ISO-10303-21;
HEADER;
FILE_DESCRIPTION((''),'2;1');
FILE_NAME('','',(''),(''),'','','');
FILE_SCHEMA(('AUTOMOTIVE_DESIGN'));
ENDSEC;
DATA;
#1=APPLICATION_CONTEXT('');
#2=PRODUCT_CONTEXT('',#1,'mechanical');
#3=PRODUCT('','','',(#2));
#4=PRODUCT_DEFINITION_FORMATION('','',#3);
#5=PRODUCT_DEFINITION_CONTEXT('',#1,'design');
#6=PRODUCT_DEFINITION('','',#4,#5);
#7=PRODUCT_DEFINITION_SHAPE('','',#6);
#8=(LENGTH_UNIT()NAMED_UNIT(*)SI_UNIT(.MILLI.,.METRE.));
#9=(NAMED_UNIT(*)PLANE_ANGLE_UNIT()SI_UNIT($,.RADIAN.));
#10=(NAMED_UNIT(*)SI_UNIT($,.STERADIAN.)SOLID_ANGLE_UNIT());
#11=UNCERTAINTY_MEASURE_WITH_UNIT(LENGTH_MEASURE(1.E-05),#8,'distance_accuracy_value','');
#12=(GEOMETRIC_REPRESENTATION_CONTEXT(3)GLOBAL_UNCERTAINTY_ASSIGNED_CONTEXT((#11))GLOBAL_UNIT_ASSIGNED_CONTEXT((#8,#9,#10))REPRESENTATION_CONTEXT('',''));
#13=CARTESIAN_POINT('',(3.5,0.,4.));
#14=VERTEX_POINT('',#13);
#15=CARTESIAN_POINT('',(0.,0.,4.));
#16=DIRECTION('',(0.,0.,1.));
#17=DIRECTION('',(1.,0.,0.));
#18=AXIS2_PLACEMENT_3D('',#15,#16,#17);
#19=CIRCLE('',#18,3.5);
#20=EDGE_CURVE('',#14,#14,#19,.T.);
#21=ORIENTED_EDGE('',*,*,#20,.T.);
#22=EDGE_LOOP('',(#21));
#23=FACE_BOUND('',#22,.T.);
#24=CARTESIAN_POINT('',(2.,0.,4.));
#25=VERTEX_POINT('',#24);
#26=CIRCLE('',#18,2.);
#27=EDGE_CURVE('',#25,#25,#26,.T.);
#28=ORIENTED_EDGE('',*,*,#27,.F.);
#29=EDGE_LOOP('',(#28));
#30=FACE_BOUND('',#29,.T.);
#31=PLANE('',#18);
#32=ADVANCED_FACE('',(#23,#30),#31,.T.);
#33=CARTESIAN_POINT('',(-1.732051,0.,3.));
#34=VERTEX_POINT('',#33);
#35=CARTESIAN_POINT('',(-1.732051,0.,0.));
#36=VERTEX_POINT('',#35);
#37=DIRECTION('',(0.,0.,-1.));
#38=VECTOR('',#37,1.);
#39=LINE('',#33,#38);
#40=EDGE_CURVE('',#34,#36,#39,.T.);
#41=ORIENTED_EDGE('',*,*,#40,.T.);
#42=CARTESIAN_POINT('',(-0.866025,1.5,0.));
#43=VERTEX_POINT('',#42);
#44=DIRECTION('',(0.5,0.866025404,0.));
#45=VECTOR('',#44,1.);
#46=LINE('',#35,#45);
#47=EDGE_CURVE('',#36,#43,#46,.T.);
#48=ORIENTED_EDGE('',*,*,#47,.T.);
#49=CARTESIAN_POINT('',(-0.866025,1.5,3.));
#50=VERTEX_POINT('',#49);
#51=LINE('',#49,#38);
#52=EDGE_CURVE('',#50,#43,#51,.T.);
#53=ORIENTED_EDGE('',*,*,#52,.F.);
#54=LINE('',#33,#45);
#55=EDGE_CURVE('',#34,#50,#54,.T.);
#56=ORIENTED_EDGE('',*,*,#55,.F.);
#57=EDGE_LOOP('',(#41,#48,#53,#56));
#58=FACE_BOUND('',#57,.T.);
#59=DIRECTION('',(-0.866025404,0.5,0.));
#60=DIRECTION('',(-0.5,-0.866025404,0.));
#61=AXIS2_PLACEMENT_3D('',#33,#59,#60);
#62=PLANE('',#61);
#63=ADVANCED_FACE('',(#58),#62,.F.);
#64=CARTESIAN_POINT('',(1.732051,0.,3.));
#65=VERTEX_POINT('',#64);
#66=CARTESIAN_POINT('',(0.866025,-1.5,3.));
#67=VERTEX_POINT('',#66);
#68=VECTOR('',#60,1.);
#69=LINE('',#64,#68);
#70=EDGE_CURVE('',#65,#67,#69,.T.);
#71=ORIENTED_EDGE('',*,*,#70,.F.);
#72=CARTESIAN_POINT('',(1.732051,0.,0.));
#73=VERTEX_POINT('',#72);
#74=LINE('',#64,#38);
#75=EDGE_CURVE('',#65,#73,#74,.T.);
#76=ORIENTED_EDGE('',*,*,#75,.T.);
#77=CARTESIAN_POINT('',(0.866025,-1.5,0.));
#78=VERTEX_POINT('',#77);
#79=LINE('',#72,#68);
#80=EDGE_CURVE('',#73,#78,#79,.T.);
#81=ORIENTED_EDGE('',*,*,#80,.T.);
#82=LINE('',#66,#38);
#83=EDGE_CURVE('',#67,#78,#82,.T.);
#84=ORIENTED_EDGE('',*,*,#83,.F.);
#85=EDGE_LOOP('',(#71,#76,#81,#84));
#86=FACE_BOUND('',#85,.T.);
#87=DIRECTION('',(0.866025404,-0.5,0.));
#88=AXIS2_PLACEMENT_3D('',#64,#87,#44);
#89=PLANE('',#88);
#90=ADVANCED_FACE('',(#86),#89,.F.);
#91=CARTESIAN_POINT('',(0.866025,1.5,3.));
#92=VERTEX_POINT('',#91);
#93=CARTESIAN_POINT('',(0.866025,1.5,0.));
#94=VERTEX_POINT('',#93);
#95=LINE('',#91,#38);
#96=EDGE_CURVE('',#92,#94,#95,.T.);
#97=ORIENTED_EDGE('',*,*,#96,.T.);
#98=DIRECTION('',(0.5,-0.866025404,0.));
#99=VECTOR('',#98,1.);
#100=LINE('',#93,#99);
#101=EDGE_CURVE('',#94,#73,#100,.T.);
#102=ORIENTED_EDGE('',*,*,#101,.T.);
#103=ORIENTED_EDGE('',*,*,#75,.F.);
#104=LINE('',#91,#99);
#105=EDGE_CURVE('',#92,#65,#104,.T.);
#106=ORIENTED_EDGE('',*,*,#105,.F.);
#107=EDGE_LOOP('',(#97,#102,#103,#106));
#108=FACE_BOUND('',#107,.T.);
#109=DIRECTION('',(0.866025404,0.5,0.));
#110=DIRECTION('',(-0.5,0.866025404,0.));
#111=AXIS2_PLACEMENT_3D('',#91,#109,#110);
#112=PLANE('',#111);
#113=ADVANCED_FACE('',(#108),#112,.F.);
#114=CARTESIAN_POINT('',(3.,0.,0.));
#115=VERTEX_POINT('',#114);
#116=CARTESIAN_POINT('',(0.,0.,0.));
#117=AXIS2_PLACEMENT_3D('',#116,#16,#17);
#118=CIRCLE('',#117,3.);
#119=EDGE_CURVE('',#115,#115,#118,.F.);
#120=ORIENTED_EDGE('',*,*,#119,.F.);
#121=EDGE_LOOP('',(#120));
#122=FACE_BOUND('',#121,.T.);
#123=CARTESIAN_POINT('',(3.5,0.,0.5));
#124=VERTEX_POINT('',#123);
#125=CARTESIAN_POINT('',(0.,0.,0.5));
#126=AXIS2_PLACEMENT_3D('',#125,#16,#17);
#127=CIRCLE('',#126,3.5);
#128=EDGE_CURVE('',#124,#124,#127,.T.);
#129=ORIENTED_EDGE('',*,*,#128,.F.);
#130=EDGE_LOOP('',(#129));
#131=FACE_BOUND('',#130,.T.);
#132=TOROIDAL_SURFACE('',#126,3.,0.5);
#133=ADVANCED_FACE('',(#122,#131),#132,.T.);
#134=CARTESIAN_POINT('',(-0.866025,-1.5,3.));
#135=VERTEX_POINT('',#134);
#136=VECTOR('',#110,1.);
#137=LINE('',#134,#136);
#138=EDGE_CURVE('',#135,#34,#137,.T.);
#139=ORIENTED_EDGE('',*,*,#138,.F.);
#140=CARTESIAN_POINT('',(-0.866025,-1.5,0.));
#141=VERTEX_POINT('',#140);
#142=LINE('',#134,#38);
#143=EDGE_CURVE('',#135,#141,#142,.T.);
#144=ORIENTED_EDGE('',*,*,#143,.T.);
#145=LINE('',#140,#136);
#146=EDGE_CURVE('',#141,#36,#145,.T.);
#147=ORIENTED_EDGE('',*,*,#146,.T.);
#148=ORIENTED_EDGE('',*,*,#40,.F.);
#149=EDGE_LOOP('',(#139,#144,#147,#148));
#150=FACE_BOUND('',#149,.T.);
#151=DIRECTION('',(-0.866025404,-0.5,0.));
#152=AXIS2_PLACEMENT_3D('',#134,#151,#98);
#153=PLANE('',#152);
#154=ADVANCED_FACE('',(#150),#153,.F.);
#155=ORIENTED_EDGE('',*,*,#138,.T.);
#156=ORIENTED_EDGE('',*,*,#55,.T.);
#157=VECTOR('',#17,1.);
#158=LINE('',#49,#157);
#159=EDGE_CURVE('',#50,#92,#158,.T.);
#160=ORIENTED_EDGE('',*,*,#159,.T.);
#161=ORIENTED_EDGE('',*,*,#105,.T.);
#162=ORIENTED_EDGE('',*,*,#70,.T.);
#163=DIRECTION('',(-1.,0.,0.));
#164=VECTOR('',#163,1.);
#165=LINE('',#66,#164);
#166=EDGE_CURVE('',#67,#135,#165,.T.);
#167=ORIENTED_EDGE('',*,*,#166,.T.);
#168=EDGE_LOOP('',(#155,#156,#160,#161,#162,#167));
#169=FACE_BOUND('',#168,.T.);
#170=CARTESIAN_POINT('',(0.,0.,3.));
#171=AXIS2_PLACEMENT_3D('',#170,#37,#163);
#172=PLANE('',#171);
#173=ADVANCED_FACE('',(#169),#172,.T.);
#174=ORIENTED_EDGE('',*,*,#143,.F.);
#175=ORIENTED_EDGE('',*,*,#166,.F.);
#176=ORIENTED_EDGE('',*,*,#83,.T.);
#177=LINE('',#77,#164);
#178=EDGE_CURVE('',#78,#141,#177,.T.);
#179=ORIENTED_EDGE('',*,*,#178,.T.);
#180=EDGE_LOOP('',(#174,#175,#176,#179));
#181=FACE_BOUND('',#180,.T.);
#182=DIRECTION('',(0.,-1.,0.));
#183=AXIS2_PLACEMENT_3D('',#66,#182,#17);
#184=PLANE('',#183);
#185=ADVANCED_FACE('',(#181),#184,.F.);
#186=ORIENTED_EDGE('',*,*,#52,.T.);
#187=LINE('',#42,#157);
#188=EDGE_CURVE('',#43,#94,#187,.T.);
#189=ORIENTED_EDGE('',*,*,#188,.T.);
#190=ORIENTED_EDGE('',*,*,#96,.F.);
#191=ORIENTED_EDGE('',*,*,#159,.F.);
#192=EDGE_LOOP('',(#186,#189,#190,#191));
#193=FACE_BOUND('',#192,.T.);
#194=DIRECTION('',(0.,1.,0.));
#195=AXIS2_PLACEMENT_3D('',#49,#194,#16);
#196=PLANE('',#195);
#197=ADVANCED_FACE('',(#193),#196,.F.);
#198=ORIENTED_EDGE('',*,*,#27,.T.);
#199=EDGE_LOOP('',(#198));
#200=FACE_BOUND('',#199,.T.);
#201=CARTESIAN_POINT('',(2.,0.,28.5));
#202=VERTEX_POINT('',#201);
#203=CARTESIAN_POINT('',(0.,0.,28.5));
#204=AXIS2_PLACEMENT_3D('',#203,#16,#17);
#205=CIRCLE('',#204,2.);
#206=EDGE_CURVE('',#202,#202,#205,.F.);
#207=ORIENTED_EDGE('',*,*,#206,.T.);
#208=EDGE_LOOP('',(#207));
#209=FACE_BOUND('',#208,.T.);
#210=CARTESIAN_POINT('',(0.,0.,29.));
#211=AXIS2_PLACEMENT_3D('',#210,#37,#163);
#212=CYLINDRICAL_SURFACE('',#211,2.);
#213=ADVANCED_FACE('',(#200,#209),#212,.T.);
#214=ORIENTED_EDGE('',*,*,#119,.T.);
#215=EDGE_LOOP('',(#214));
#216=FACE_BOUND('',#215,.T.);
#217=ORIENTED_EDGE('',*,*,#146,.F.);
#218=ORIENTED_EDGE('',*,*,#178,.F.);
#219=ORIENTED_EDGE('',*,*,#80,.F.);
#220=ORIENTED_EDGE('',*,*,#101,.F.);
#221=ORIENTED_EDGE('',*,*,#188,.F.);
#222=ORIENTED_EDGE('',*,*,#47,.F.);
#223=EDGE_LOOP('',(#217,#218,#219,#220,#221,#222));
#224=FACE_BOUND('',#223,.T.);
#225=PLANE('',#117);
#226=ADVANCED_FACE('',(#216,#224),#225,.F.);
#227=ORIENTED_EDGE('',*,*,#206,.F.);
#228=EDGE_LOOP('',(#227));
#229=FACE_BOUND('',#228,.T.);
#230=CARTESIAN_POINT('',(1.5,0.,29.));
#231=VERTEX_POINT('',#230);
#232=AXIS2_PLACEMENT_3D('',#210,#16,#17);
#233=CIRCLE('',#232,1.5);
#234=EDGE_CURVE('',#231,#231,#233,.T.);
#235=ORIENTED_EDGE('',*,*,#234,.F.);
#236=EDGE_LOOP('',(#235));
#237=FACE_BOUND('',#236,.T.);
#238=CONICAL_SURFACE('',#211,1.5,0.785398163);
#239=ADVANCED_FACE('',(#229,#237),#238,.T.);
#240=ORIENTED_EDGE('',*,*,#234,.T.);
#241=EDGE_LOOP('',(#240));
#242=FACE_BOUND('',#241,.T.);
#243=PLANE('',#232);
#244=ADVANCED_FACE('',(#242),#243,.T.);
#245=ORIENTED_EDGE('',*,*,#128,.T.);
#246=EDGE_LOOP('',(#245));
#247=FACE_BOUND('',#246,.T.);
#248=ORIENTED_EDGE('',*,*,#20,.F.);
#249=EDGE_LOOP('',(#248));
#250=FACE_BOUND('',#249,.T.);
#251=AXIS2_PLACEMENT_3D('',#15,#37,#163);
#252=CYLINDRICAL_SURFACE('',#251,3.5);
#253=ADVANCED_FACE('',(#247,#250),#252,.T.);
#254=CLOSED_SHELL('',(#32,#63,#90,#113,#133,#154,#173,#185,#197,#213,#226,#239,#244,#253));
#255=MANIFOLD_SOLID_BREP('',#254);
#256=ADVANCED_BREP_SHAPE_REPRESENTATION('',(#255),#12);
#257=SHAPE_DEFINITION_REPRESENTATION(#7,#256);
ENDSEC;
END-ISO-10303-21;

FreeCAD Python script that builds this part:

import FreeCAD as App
import Part
import Sketcher
Q = App.Units.Quantity


def edges_at(feature, points):
    """Names of the edges that pass closest to the given points."""
    edges = feature.Shape.Edges
    near = lambda p: min(range(len(edges)), key=lambda i: edges[i].distToShape(Part.Vertex(*p))[0])
    return sorted({f"Edge{near(p) + 1}" for p in points})

doc = App.newDocument("Part")
params = doc.addObject("Spreadsheet::Sheet", "Params")
for row, (alias, value) in enumerate([
    ("sketch1_diameter", "7 mm"),
    ("pad1_length", "4 mm"),
    ("sketch2_diameter", "4 mm"),
    ("pad2_length", "25 mm"),
    ("pocket1_length", "3 mm"),
    ("chamfer_size", "0.5 mm"),
    ("fillet_radius", "0.5 mm"),
], start=1):
    params.set(f"A{row}", alias)
    params.set(f"B{row}", "=" + value)
    params.setAlias(f"B{row}", alias)

body = doc.addObject("PartDesign::Body", "Body")

sketch1 = doc.addObject("Sketcher::SketchObject", "Sketch")
body.addObject(sketch1)
sketch1.AttachmentSupport = (doc.XY_Plane, [""])
sketch1.MapMode = "FlatFace"
sketch1.addGeometry(Part.Circle(App.Vector(0, 0, 0), App.Vector(0, 0, 1), 3.5), False)
sketch1.addConstraint(Sketcher.Constraint("Coincident", 0, 3, -1, 1))
sketch1.addConstraint(Sketcher.Constraint("Diameter", 0, 7.0))
sketch1.setExpression("Constraints[1]", "Params.sketch1_diameter")
pad1 = doc.addObject("PartDesign::Pad", "Pad")
body.addObject(pad1)
pad1.Profile = sketch1
pad1.setExpression("Length", "Params.pad1_length")

sketch2 = doc.addObject("Sketcher::SketchObject", "Sketch001")
body.addObject(sketch2)
sketch2.AttachmentSupport = (doc.XY_Plane, [""])
sketch2.MapMode = "FlatFace"
sketch2.AttachmentOffset = App.Placement(App.Vector(0, 0, 4), App.Rotation())
sketch2.addGeometry(Part.Circle(App.Vector(0, 0, 0), App.Vector(0, 0, 1), 2), False)
sketch2.addConstraint(Sketcher.Constraint("Coincident", 0, 3, -1, 1))
sketch2.addConstraint(Sketcher.Constraint("Diameter", 0, 4.0))
sketch2.setExpression("Constraints[1]", "Params.sketch2_diameter")
pad2 = doc.addObject("PartDesign::Pad", "Pad001")
body.addObject(pad2)
pad2.Profile = sketch2
pad2.setExpression("Length", "Params.pad2_length")

sketch3 = doc.addObject("Sketcher::SketchObject", "Sketch002")
body.addObject(sketch3)
sketch3.AttachmentSupport = (doc.XY_Plane, [""])
sketch3.MapMode = "FlatFace"
sketch3.addGeometry(Part.LineSegment(App.Vector(-1.7, 0, 0), App.Vector(-0.9, 1.5, 0)), False)
sketch3.addGeometry(Part.LineSegment(App.Vector(-0.9, 1.5, 0), App.Vector(0.9, 1.5, 0)), False)
sketch3.addGeometry(Part.LineSegment(App.Vector(0.9, 1.5, 0), App.Vector(1.7, 0, 0)), False)
sketch3.addGeometry(Part.LineSegment(App.Vector(1.7, 0, 0), App.Vector(0.9, -1.5, 0)), False)
sketch3.addGeometry(Part.LineSegment(App.Vector(0.9, -1.5, 0), App.Vector(-0.9, -1.5, 0)), False)
sketch3.addGeometry(Part.LineSegment(App.Vector(-0.9, -1.5, 0), App.Vector(-1.7, 0, 0)), False)
sketch3.addConstraint(Sketcher.Constraint("Coincident", 0, 2, 1, 1))
sketch3.addConstraint(Sketcher.Constraint("Coincident", 1, 2, 2, 1))
sketch3.addConstraint(Sketcher.Constraint("Coincident", 2, 2, 3, 1))
sketch3.addConstraint(Sketcher.Constraint("Coincident", 3, 2, 4, 1))
sketch3.addConstraint(Sketcher.Constraint("Coincident", 4, 2, 5, 1))
sketch3.addConstraint(Sketcher.Constraint("Coincident", 5, 2, 0, 1))
sketch3.addConstraint(Sketcher.Constraint("Horizontal", 1))
sketch3.addConstraint(Sketcher.Constraint("Horizontal", 4))
sketch3.addConstraint(Sketcher.Constraint("Symmetric", 0, 2, 3, 2, -1, 1))
sketch3.addConstraint(Sketcher.Constraint("Symmetric", 2, 2, 5, 2, -1, 1))
sketch3.addConstraint(Sketcher.Constraint("PointOnObject", 2, 2, -1))
sketch3.addConstraint(Sketcher.Constraint("Parallel", 2, 5))
sketch3.addConstraint(Sketcher.Constraint("Vertical", 1, 2, 3, 2))
sketch3.addConstraint(Sketcher.Constraint("Angle", 0, Q("60 deg")))
sketch3.addConstraint(Sketcher.Constraint("DistanceY", 3, 2, 1, 2, 3.0))
sketch3.addConstraint(Sketcher.Constraint("DistanceX", 1, 1, 1, 2, 1.732051))
pocket1 = doc.addObject("PartDesign::Pocket", "Pocket")
body.addObject(pocket1)
pocket1.Profile = sketch3
pocket1.setExpression("Length", "Params.pocket1_length")
pocket1.Reversed = True
doc.recompute()

chamfer = doc.addObject("PartDesign::Chamfer", "Chamfer")
body.addObject(chamfer)
chamfer.Base = (pocket1, edges_at(pocket1, [(-2, 0, 29)]))
chamfer.setExpression("Size", "Params.chamfer_size")
doc.recompute()

fillet = doc.addObject("PartDesign::Fillet", "Fillet")
body.addObject(fillet)
fillet.Base = (chamfer, edges_at(chamfer, [(-3.5, 0, 0)]))
fillet.setExpression("Radius", "Params.fillet_radius")

doc.recompute()
